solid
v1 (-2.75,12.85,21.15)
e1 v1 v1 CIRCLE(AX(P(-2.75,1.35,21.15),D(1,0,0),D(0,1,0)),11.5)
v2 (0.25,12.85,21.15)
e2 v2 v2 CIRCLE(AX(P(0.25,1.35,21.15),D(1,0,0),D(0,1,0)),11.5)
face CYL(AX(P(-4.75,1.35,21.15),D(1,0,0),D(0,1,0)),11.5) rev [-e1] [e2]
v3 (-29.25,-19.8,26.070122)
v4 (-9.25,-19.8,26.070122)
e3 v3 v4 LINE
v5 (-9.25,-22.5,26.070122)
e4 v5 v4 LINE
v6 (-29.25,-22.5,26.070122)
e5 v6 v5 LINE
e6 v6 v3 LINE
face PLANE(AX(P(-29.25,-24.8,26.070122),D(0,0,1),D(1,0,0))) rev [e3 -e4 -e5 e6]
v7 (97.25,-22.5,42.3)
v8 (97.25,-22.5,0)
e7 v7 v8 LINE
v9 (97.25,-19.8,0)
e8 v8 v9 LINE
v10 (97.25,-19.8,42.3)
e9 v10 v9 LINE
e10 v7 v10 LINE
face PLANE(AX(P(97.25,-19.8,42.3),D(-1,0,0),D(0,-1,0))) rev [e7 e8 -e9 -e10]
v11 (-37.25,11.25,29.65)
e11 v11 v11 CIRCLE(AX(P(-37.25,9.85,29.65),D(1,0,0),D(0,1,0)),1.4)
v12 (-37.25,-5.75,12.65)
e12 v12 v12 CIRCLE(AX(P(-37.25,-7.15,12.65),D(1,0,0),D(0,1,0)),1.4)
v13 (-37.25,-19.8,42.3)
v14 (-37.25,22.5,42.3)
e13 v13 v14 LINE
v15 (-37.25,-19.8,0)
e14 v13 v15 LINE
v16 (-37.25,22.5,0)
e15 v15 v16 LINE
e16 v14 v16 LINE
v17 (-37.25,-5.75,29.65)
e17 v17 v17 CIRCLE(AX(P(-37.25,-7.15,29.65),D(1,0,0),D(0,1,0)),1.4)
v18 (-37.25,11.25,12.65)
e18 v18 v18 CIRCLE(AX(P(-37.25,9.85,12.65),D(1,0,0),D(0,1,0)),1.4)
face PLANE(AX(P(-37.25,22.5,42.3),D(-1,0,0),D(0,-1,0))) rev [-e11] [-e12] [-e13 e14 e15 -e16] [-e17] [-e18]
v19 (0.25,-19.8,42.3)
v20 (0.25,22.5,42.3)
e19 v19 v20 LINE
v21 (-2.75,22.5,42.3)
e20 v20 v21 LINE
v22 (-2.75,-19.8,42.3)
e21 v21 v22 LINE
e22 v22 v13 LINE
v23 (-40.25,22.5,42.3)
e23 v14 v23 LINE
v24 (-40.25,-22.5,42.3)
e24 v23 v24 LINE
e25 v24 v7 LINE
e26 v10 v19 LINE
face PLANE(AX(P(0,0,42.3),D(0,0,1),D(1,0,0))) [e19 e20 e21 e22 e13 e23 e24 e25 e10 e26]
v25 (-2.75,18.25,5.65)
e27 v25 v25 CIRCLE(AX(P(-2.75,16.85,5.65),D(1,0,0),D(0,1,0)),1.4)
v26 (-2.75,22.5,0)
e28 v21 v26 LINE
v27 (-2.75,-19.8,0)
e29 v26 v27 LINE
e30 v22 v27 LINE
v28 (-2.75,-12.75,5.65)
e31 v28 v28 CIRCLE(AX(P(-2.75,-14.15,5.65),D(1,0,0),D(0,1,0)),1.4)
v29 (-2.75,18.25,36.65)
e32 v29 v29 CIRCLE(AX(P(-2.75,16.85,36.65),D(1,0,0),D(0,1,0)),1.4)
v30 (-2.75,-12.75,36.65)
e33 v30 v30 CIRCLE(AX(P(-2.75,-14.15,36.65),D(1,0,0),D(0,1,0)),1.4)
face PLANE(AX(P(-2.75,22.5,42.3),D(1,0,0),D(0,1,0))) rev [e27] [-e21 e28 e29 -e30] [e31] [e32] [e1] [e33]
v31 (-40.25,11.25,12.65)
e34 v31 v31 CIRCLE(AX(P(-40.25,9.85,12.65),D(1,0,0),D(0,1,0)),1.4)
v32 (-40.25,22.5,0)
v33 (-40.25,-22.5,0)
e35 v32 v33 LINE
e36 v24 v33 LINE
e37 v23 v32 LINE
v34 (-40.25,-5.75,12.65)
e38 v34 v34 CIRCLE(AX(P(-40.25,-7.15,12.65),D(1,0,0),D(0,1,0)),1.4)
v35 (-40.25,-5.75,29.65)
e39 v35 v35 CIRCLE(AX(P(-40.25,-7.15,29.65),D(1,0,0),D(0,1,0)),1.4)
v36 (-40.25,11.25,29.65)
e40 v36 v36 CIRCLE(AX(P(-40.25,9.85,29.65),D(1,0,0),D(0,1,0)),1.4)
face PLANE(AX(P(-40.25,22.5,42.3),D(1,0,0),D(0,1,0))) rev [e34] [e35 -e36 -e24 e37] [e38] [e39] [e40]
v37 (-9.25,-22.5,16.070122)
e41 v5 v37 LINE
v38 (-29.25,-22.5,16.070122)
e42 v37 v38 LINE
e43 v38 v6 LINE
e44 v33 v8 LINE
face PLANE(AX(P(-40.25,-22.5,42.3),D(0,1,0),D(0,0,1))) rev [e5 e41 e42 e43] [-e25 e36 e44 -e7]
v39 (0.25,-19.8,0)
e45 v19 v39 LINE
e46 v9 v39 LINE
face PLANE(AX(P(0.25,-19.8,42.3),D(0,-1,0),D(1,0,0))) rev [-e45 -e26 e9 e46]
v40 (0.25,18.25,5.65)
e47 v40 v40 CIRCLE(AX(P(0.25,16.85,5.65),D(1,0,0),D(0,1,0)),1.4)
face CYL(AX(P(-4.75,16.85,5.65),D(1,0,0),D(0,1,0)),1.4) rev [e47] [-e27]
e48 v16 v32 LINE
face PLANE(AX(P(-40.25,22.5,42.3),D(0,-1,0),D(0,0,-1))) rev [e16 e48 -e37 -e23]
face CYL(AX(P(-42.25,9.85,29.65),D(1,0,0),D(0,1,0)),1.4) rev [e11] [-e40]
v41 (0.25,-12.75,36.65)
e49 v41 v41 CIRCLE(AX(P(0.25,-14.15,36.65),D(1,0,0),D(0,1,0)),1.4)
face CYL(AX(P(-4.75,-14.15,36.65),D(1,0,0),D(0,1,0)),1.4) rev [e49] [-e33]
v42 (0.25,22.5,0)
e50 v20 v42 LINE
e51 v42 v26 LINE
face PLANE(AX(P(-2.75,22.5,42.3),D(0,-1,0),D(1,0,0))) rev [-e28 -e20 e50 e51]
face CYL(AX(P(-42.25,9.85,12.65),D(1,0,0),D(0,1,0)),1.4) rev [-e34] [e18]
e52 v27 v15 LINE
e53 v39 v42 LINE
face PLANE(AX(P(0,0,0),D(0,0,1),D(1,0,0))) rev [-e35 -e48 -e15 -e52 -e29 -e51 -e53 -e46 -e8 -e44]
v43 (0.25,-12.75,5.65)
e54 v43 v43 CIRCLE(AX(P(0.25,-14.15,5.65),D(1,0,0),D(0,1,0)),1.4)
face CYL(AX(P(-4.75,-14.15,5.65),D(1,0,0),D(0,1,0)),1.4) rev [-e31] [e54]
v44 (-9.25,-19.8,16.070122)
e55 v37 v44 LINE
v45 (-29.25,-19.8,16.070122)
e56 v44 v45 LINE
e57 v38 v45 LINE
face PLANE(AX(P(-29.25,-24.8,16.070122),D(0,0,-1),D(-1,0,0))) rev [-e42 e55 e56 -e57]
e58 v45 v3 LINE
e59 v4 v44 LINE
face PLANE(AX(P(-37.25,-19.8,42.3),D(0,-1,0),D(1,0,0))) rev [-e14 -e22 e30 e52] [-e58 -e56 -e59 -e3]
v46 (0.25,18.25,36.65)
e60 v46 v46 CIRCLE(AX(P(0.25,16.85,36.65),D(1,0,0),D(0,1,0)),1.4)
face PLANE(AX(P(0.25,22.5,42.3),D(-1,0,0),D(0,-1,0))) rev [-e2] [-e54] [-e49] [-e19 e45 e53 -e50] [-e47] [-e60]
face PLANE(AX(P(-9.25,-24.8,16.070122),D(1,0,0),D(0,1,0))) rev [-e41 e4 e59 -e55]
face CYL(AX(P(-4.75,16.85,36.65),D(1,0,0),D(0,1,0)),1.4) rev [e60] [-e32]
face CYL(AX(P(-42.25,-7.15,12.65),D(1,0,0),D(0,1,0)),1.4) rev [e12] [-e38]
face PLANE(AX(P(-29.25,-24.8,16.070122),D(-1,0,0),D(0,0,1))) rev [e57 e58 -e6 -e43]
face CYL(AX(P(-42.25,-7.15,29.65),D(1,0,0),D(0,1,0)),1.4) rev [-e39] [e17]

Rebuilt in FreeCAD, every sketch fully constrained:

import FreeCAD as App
import Part
import Sketcher

V = App.Vector
Q = App.Units.Quantity


def add_polygon(sketch, points):
    """Adds a closed chain of lines whose ends are joined by coincident constraints."""
    first, n = sketch.GeometryCount, len(points)
    for a, b in zip(points, points[1:] + points[:1]):
        sketch.addGeometry(Part.LineSegment(App.Vector(*a, 0), App.Vector(*b, 0)), False)
    for i in range(n):
        sketch.addConstraint(Sketcher.Constraint("Coincident", first + i, 2, first + (i + 1) % n, 1))

doc = App.newDocument("Part")
params = doc.addObject("Spreadsheet::Sheet", "Params")
for row, (alias, value) in enumerate([
    ("sketch1_width", "3 mm"),
    ("sketch1_width2", "97 mm"),
    ("sketch1_height", "45 mm"),
    ("sketch1_width3", "34.5 mm"),
    ("sketch1_height2", "42.3 mm"),
    ("pad1_length", "42.3 mm"),
    ("sketch2_diameter", "23 mm"),
    ("sketch2_diameter2", "2.8 mm"),
    ("pocket1_length", "5 mm"),
    ("sketch3_diameter", "2.8 mm"),
    ("pocket2_length", "5 mm"),
    ("sketch4_width", "20 mm"),
    ("sketch4_height", "10 mm"),
    ("pocket3_length", "5 mm"),
], start=1):
    params.set(f"A{row}", alias)
    params.set(f"B{row}", "=" + value)
    params.setAlias(f"B{row}", alias)

body = doc.addObject("PartDesign::Body", "Body")

sketch1 = body.newObject("Sketcher::SketchObject", "Sketch")
sketch1.AttachmentSupport = (doc.getObject("XY_Plane"), [""])
sketch1.MapMode = "FlatFace"
add_polygon(sketch1, [(-2.8, 22.5), (-2.8, -19.8), (-37.2, -19.8), (-37.2, 22.5), (-40.2, 22.5), (-40.2, -22.5), (97.2, -22.5), (97.2, -19.8), (0.2, -19.8), (0.2, 22.5)])
sketch1.addConstraint([
    Sketcher.Constraint("Vertical", 0),
    Sketcher.Constraint("Horizontal", 1),
    Sketcher.Constraint("Vertical", 2),
    Sketcher.Constraint("Horizontal", 3),
    Sketcher.Constraint("Vertical", 4),
    Sketcher.Constraint("Horizontal", 5),
    Sketcher.Constraint("Vertical", 6),
    Sketcher.Constraint("Horizontal", 7),
    Sketcher.Constraint("Vertical", 8),
    Sketcher.Constraint("Horizontal", 9),
    Sketcher.Constraint("Horizontal", 1, 2, 6, 2),
    Sketcher.Constraint("Horizontal", 3, 2, 8, 2),
    Sketcher.Constraint("Equal", 3, 9),
    Sketcher.Constraint("DistanceX", 3, 2, 3, 1, Q("3 mm")),
    Sketcher.Constraint("DistanceX", 7, 2, 7, 1, Q("97 mm")),
    Sketcher.Constraint("DistanceY", 4, 2, 4, 1, Q("45 mm")),
    Sketcher.Constraint("DistanceX", 1, 2, 1, 1, Q("34.5 mm")),
    Sketcher.Constraint("DistanceY", 0, 2, 0, 1, Q("42.3 mm")),
    Sketcher.Constraint("DistanceY", 0, 2, -1, 1, Q("19.8 mm")),
    Sketcher.Constraint("DistanceX", 0, 2, -1, 1, Q("2.75 mm")),
])
sketch1.setExpression("Constraints[23]", "Params.sketch1_width")
sketch1.setExpression("Constraints[24]", "Params.sketch1_width2")
sketch1.setExpression("Constraints[25]", "Params.sketch1_height")
sketch1.setExpression("Constraints[26]", "Params.sketch1_width3")
sketch1.setExpression("Constraints[27]", "Params.sketch1_height2")
pad1 = body.newObject("PartDesign::Pad", "Pad")
pad1.Profile = sketch1
pad1.setExpression("Length", "Params.pad1_length")

sketch2 = body.newObject("Sketcher::SketchObject", "Sketch001")
sketch2.AttachmentSupport = (doc.getObject("YZ_Plane"), [""])
sketch2.MapMode = "FlatFace"
sketch2.AttachmentOffset = App.Placement(V(0, 0, 0.25), App.Rotation())
sketch2.addGeometry([
    Part.Circle(V(1.4, 21.1, 0), V(0, 0, 1), 11.5),
    Part.Circle(V(16.9, 36.6, 0), V(0, 0, 1), 1.4),
    Part.Circle(V(16.9, 5.7, 0), V(0, 0, 1), 1.4),
    Part.Circle(V(-14.2, 5.7, 0), V(0, 0, 1), 1.4),
    Part.Circle(V(-14.2, 36.6, 0), V(0, 0, 1), 1.4),
], False)
sketch2.addConstraint([
    Sketcher.Constraint("Equal", 1, 2),
    Sketcher.Constraint("Equal", 2, 3),
    Sketcher.Constraint("Equal", 3, 4),
    Sketcher.Constraint("Horizontal", 2, 3, 3, 3),
    Sketcher.Constraint("Horizontal", 1, 3, 4, 3),
    Sketcher.Constraint("Vertical", 1, 3, 2, 3),
    Sketcher.Constraint("Vertical", 3, 3, 4, 3),
    Sketcher.Constraint("Diameter", 0, Q("23 mm")),
    Sketcher.Constraint("Diameter", 1, Q("2.8 mm")),
    Sketcher.Constraint("DistanceY", 2, 3, 1, 3, Q("31 mm")),
    Sketcher.Constraint("DistanceX", 3, 3, 2, 3, Q("31 mm")),
    Sketcher.Constraint("DistanceX", 0, 3, 1, 3, Q("15.5 mm")),
    Sketcher.Constraint("DistanceY", 0, 3, 1, 3, Q("15.5 mm")),
    Sketcher.Constraint("DistanceX", -1, 1, 0, 3, Q("1.35 mm")),
    Sketcher.Constraint("DistanceY", -1, 1, 0, 3, Q("21.15 mm")),
])
sketch2.setExpression("Constraints[7]", "Params.sketch2_diameter")
sketch2.setExpression("Constraints[8]", "Params.sketch2_diameter2")
pocket1 = body.newObject("PartDesign::Pocket", "Pocket")
pocket1.Profile = sketch2
pocket1.setExpression("Length", "Params.pocket1_length")

sketch3 = body.newObject("Sketcher::SketchObject", "Sketch002")
sketch3.AttachmentSupport = (doc.getObject("YZ_Plane"), [""])
sketch3.MapMode = "FlatFace"
sketch3.AttachmentOffset = App.Placement(V(0, 0, -37.25), App.Rotation())
sketch3.addGeometry([
    Part.Circle(V(9.8, 29.6, 0), V(0, 0, 1), 1.4),
    Part.Circle(V(9.8, 12.7, 0), V(0, 0, 1), 1.4),
    Part.Circle(V(-7.2, 12.7, 0), V(0, 0, 1), 1.4),
    Part.Circle(V(-7.2, 29.6, 0), V(0, 0, 1), 1.4),
], False)
sketch3.addConstraint([
    Sketcher.Constraint("Equal", 0, 1),
    Sketcher.Constraint("Equal", 1, 2),
    Sketcher.Constraint("Equal", 2, 3),
    Sketcher.Constraint("Horizontal", 1, 3, 2, 3),
    Sketcher.Constraint("Horizontal", 0, 3, 3, 3),
    Sketcher.Constraint("Vertical", 0, 3, 1, 3),
    Sketcher.Constraint("Vertical", 2, 3, 3, 3),
    Sketcher.Constraint("Diameter", 0, Q("2.8 mm")),
    Sketcher.Constraint("DistanceY", 1, 3, 0, 3, Q("17 mm")),
    Sketcher.Constraint("DistanceX", 2, 3, 1, 3, Q("17 mm")),
    Sketcher.Constraint("DistanceX", -1, 1, 0, 3, Q("9.85 mm")),
    Sketcher.Constraint("DistanceY", -1, 1, 0, 3, Q("29.65 mm")),
])
sketch3.setExpression("Constraints[7]", "Params.sketch3_diameter")
pocket2 = body.newObject("PartDesign::Pocket", "Pocket001")
pocket2.Profile = sketch3
pocket2.setExpression("Length", "Params.pocket2_length")

sketch4 = body.newObject("Sketcher::SketchObject", "Sketch003")
sketch4.AttachmentSupport = (doc.getObject("XZ_Plane"), [""])
sketch4.MapMode = "FlatFace"
sketch4.AttachmentOffset = App.Placement(V(0, 0, 19.8), App.Rotation())
add_polygon(sketch4, [(-29, 16), (-29, 26), (-9, 26), (-9, 16)])
sketch4.addConstraint([
    Sketcher.Constraint("Vertical", 0),
    Sketcher.Constraint("Horizontal", 1),
    Sketcher.Constraint("Vertical", 2),
    Sketcher.Constraint("Horizontal", 3),
    Sketcher.Constraint("DistanceX", 1, 1, 1, 2, Q("20 mm")),
    Sketcher.Constraint("DistanceY", 0, 1, 0, 2, Q("10 mm")),
    Sketcher.Constraint("DistanceX", 0, 2, -1, 1, Q("29.25 mm")),
    Sketcher.Constraint("DistanceY", -1, 1, 0, 2, Q("26.070122 mm")),
])
sketch4.setExpression("Constraints[8]", "Params.sketch4_width")
sketch4.setExpression("Constraints[9]", "Params.sketch4_height")
pocket3 = body.newObject("PartDesign::Pocket", "Pocket002")
pocket3.Profile = sketch4
pocket3.setExpression("Length", "Params.pocket3_length")
pocket3.Reversed = True

doc.recompute()
